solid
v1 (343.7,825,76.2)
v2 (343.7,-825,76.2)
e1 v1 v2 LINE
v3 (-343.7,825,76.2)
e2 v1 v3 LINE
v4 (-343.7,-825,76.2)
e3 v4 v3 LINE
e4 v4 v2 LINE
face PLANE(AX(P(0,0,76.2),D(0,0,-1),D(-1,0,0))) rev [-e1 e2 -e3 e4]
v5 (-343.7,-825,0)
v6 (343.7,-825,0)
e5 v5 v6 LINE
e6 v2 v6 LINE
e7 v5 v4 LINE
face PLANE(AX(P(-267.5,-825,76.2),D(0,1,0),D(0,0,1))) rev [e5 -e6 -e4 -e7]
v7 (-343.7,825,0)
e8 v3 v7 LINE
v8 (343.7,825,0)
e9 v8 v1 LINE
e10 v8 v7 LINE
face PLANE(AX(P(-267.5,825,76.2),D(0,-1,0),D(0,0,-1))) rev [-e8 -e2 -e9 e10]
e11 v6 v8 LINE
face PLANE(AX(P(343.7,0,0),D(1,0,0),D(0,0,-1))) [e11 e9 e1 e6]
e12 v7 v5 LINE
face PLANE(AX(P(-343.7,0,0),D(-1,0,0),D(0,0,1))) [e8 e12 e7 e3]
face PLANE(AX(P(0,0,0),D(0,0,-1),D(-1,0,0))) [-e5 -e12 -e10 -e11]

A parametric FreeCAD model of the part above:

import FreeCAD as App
import Part
import Sketcher
from FreeCAD import Vector
Q = App.Units.Quantity

doc = App.newDocument("Part")
body = doc.addObject("PartDesign::Body", "Body")

sketch1 = body.newObject("Sketcher::SketchObject", "Sketch")
sketch1.AttachmentSupport = (doc.getObject("XY_Plane"), [""])
sketch1.MapMode = "FlatFace"
sketch1.addGeometry([
    Part.LineSegment(Vector(-268, 825, 0), Vector(-268, -825, 0)),
    Part.LineSegment(Vector(-268, -825, 0), Vector(268, -825, 0)),
    Part.LineSegment(Vector(268, -825, 0), Vector(268, 825, 0)),
    Part.LineSegment(Vector(268, 825, 0), Vector(-268, 825, 0)),
], False)
sketch1.addConstraint([
    Sketcher.Constraint("Coincident", 0, 2, 1, 1),
    Sketcher.Constraint("Coincident", 1, 2, 2, 1),
    Sketcher.Constraint("Coincident", 2, 2, 3, 1),
    Sketcher.Constraint("Coincident", 3, 2, 0, 1),
    Sketcher.Constraint("Vertical", 0),
    Sketcher.Constraint("Horizontal", 1),
    Sketcher.Constraint("Vertical", 2),
    Sketcher.Constraint("Horizontal", 3),
    Sketcher.Constraint("Symmetric", 0, 2, 2, 2, -1, 1),
    Sketcher.Constraint("DistanceX", 1, 1, 1, 2, Q("535 mm")),
    Sketcher.Constraint("DistanceY", 0, 2, 0, 1, Q("1650 mm")),
])
pad1 = body.newObject("PartDesign::Pad", "Pad")
pad1.Profile = sketch1
pad1.Length = 76.2

sketch2 = body.newObject("Sketcher::SketchObject", "Sketch001")
sketch2.AttachmentSupport = (doc.getObject("YZ_Plane"), [""])
sketch2.MapMode = "FlatFace"
sketch2.AttachmentOffset = App.Placement(Vector(0, 0, 267.5), App.Rotation())
sketch2.addGeometry([
    Part.LineSegment(Vector(825, 76, 0), Vector(-825, 76, 0)),
    Part.LineSegment(Vector(-825, 76, 0), Vector(-825, 0, 0)),
    Part.LineSegment(Vector(-825, 0, 0), Vector(825, 0, 0)),
    Part.LineSegment(Vector(825, 0, 0), Vector(825, 76, 0)),
], False)
sketch2.addConstraint([
    Sketcher.Constraint("Coincident", 0, 2, 1, 1),
    Sketcher.Constraint("Coincident", 1, 2, 2, 1),
    Sketcher.Constraint("Coincident", 2, 2, 3, 1),
    Sketcher.Constraint("Coincident", 3, 2, 0, 1),
    Sketcher.Constraint("Horizontal", 0),
    Sketcher.Constraint("Vertical", 1),
    Sketcher.Constraint("Horizontal", 2),
    Sketcher.Constraint("Vertical", 3),
    Sketcher.Constraint("Symmetric", 1, 2, 2, 2, -1, 1),
    Sketcher.Constraint("DistanceX", 0, 2, 0, 1, Q("1650 mm")),
    Sketcher.Constraint("DistanceY", 1, 2, 1, 1, Q("76.2 mm")),
])
pad2 = body.newObject("PartDesign::Pad", "Pad001")
pad2.Profile = sketch2
pad2.Length = 76.2

sketch3 = body.newObject("Sketcher::SketchObject", "Sketch002")
sketch3.AttachmentSupport = (doc.getObject("YZ_Plane"), [""])
sketch3.MapMode = "FlatFace"
sketch3.AttachmentOffset = App.Placement(Vector(0, 0, -267.5), App.Rotation())
sketch3.addGeometry([
    Part.LineSegment(Vector(825, 0, 0), Vector(-825, 0, 0)),
    Part.LineSegment(Vector(-825, 0, 0), Vector(-825, 76, 0)),
    Part.LineSegment(Vector(-825, 76, 0), Vector(825, 76, 0)),
    Part.LineSegment(Vector(825, 76, 0), Vector(825, 0, 0)),
], False)
sketch3.addConstraint([
    Sketcher.Constraint("Coincident", 0, 2, 1, 1),
    Sketcher.Constraint("Coincident", 1, 2, 2, 1),
    Sketcher.Constraint("Coincident", 2, 2, 3, 1),
    Sketcher.Constraint("Coincident", 3, 2, 0, 1),
    Sketcher.Constraint("Horizontal", 0),
    Sketcher.Constraint("Vertical", 1),
    Sketcher.Constraint("Horizontal", 2),
    Sketcher.Constraint("Vertical", 3),
    Sketcher.Constraint("Symmetric", 0, 2, 3, 2, -1, 1),
    Sketcher.Constraint("DistanceX", 0, 2, 0, 1, Q("1650 mm")),
    Sketcher.Constraint("DistanceY", 1, 1, 1, 2, Q("76.2 mm")),
])
pad3 = body.newObject("PartDesign::Pad", "Pad002")
pad3.Profile = sketch3
pad3.Length = 76.2
pad3.Reversed = True

doc.recompute()
